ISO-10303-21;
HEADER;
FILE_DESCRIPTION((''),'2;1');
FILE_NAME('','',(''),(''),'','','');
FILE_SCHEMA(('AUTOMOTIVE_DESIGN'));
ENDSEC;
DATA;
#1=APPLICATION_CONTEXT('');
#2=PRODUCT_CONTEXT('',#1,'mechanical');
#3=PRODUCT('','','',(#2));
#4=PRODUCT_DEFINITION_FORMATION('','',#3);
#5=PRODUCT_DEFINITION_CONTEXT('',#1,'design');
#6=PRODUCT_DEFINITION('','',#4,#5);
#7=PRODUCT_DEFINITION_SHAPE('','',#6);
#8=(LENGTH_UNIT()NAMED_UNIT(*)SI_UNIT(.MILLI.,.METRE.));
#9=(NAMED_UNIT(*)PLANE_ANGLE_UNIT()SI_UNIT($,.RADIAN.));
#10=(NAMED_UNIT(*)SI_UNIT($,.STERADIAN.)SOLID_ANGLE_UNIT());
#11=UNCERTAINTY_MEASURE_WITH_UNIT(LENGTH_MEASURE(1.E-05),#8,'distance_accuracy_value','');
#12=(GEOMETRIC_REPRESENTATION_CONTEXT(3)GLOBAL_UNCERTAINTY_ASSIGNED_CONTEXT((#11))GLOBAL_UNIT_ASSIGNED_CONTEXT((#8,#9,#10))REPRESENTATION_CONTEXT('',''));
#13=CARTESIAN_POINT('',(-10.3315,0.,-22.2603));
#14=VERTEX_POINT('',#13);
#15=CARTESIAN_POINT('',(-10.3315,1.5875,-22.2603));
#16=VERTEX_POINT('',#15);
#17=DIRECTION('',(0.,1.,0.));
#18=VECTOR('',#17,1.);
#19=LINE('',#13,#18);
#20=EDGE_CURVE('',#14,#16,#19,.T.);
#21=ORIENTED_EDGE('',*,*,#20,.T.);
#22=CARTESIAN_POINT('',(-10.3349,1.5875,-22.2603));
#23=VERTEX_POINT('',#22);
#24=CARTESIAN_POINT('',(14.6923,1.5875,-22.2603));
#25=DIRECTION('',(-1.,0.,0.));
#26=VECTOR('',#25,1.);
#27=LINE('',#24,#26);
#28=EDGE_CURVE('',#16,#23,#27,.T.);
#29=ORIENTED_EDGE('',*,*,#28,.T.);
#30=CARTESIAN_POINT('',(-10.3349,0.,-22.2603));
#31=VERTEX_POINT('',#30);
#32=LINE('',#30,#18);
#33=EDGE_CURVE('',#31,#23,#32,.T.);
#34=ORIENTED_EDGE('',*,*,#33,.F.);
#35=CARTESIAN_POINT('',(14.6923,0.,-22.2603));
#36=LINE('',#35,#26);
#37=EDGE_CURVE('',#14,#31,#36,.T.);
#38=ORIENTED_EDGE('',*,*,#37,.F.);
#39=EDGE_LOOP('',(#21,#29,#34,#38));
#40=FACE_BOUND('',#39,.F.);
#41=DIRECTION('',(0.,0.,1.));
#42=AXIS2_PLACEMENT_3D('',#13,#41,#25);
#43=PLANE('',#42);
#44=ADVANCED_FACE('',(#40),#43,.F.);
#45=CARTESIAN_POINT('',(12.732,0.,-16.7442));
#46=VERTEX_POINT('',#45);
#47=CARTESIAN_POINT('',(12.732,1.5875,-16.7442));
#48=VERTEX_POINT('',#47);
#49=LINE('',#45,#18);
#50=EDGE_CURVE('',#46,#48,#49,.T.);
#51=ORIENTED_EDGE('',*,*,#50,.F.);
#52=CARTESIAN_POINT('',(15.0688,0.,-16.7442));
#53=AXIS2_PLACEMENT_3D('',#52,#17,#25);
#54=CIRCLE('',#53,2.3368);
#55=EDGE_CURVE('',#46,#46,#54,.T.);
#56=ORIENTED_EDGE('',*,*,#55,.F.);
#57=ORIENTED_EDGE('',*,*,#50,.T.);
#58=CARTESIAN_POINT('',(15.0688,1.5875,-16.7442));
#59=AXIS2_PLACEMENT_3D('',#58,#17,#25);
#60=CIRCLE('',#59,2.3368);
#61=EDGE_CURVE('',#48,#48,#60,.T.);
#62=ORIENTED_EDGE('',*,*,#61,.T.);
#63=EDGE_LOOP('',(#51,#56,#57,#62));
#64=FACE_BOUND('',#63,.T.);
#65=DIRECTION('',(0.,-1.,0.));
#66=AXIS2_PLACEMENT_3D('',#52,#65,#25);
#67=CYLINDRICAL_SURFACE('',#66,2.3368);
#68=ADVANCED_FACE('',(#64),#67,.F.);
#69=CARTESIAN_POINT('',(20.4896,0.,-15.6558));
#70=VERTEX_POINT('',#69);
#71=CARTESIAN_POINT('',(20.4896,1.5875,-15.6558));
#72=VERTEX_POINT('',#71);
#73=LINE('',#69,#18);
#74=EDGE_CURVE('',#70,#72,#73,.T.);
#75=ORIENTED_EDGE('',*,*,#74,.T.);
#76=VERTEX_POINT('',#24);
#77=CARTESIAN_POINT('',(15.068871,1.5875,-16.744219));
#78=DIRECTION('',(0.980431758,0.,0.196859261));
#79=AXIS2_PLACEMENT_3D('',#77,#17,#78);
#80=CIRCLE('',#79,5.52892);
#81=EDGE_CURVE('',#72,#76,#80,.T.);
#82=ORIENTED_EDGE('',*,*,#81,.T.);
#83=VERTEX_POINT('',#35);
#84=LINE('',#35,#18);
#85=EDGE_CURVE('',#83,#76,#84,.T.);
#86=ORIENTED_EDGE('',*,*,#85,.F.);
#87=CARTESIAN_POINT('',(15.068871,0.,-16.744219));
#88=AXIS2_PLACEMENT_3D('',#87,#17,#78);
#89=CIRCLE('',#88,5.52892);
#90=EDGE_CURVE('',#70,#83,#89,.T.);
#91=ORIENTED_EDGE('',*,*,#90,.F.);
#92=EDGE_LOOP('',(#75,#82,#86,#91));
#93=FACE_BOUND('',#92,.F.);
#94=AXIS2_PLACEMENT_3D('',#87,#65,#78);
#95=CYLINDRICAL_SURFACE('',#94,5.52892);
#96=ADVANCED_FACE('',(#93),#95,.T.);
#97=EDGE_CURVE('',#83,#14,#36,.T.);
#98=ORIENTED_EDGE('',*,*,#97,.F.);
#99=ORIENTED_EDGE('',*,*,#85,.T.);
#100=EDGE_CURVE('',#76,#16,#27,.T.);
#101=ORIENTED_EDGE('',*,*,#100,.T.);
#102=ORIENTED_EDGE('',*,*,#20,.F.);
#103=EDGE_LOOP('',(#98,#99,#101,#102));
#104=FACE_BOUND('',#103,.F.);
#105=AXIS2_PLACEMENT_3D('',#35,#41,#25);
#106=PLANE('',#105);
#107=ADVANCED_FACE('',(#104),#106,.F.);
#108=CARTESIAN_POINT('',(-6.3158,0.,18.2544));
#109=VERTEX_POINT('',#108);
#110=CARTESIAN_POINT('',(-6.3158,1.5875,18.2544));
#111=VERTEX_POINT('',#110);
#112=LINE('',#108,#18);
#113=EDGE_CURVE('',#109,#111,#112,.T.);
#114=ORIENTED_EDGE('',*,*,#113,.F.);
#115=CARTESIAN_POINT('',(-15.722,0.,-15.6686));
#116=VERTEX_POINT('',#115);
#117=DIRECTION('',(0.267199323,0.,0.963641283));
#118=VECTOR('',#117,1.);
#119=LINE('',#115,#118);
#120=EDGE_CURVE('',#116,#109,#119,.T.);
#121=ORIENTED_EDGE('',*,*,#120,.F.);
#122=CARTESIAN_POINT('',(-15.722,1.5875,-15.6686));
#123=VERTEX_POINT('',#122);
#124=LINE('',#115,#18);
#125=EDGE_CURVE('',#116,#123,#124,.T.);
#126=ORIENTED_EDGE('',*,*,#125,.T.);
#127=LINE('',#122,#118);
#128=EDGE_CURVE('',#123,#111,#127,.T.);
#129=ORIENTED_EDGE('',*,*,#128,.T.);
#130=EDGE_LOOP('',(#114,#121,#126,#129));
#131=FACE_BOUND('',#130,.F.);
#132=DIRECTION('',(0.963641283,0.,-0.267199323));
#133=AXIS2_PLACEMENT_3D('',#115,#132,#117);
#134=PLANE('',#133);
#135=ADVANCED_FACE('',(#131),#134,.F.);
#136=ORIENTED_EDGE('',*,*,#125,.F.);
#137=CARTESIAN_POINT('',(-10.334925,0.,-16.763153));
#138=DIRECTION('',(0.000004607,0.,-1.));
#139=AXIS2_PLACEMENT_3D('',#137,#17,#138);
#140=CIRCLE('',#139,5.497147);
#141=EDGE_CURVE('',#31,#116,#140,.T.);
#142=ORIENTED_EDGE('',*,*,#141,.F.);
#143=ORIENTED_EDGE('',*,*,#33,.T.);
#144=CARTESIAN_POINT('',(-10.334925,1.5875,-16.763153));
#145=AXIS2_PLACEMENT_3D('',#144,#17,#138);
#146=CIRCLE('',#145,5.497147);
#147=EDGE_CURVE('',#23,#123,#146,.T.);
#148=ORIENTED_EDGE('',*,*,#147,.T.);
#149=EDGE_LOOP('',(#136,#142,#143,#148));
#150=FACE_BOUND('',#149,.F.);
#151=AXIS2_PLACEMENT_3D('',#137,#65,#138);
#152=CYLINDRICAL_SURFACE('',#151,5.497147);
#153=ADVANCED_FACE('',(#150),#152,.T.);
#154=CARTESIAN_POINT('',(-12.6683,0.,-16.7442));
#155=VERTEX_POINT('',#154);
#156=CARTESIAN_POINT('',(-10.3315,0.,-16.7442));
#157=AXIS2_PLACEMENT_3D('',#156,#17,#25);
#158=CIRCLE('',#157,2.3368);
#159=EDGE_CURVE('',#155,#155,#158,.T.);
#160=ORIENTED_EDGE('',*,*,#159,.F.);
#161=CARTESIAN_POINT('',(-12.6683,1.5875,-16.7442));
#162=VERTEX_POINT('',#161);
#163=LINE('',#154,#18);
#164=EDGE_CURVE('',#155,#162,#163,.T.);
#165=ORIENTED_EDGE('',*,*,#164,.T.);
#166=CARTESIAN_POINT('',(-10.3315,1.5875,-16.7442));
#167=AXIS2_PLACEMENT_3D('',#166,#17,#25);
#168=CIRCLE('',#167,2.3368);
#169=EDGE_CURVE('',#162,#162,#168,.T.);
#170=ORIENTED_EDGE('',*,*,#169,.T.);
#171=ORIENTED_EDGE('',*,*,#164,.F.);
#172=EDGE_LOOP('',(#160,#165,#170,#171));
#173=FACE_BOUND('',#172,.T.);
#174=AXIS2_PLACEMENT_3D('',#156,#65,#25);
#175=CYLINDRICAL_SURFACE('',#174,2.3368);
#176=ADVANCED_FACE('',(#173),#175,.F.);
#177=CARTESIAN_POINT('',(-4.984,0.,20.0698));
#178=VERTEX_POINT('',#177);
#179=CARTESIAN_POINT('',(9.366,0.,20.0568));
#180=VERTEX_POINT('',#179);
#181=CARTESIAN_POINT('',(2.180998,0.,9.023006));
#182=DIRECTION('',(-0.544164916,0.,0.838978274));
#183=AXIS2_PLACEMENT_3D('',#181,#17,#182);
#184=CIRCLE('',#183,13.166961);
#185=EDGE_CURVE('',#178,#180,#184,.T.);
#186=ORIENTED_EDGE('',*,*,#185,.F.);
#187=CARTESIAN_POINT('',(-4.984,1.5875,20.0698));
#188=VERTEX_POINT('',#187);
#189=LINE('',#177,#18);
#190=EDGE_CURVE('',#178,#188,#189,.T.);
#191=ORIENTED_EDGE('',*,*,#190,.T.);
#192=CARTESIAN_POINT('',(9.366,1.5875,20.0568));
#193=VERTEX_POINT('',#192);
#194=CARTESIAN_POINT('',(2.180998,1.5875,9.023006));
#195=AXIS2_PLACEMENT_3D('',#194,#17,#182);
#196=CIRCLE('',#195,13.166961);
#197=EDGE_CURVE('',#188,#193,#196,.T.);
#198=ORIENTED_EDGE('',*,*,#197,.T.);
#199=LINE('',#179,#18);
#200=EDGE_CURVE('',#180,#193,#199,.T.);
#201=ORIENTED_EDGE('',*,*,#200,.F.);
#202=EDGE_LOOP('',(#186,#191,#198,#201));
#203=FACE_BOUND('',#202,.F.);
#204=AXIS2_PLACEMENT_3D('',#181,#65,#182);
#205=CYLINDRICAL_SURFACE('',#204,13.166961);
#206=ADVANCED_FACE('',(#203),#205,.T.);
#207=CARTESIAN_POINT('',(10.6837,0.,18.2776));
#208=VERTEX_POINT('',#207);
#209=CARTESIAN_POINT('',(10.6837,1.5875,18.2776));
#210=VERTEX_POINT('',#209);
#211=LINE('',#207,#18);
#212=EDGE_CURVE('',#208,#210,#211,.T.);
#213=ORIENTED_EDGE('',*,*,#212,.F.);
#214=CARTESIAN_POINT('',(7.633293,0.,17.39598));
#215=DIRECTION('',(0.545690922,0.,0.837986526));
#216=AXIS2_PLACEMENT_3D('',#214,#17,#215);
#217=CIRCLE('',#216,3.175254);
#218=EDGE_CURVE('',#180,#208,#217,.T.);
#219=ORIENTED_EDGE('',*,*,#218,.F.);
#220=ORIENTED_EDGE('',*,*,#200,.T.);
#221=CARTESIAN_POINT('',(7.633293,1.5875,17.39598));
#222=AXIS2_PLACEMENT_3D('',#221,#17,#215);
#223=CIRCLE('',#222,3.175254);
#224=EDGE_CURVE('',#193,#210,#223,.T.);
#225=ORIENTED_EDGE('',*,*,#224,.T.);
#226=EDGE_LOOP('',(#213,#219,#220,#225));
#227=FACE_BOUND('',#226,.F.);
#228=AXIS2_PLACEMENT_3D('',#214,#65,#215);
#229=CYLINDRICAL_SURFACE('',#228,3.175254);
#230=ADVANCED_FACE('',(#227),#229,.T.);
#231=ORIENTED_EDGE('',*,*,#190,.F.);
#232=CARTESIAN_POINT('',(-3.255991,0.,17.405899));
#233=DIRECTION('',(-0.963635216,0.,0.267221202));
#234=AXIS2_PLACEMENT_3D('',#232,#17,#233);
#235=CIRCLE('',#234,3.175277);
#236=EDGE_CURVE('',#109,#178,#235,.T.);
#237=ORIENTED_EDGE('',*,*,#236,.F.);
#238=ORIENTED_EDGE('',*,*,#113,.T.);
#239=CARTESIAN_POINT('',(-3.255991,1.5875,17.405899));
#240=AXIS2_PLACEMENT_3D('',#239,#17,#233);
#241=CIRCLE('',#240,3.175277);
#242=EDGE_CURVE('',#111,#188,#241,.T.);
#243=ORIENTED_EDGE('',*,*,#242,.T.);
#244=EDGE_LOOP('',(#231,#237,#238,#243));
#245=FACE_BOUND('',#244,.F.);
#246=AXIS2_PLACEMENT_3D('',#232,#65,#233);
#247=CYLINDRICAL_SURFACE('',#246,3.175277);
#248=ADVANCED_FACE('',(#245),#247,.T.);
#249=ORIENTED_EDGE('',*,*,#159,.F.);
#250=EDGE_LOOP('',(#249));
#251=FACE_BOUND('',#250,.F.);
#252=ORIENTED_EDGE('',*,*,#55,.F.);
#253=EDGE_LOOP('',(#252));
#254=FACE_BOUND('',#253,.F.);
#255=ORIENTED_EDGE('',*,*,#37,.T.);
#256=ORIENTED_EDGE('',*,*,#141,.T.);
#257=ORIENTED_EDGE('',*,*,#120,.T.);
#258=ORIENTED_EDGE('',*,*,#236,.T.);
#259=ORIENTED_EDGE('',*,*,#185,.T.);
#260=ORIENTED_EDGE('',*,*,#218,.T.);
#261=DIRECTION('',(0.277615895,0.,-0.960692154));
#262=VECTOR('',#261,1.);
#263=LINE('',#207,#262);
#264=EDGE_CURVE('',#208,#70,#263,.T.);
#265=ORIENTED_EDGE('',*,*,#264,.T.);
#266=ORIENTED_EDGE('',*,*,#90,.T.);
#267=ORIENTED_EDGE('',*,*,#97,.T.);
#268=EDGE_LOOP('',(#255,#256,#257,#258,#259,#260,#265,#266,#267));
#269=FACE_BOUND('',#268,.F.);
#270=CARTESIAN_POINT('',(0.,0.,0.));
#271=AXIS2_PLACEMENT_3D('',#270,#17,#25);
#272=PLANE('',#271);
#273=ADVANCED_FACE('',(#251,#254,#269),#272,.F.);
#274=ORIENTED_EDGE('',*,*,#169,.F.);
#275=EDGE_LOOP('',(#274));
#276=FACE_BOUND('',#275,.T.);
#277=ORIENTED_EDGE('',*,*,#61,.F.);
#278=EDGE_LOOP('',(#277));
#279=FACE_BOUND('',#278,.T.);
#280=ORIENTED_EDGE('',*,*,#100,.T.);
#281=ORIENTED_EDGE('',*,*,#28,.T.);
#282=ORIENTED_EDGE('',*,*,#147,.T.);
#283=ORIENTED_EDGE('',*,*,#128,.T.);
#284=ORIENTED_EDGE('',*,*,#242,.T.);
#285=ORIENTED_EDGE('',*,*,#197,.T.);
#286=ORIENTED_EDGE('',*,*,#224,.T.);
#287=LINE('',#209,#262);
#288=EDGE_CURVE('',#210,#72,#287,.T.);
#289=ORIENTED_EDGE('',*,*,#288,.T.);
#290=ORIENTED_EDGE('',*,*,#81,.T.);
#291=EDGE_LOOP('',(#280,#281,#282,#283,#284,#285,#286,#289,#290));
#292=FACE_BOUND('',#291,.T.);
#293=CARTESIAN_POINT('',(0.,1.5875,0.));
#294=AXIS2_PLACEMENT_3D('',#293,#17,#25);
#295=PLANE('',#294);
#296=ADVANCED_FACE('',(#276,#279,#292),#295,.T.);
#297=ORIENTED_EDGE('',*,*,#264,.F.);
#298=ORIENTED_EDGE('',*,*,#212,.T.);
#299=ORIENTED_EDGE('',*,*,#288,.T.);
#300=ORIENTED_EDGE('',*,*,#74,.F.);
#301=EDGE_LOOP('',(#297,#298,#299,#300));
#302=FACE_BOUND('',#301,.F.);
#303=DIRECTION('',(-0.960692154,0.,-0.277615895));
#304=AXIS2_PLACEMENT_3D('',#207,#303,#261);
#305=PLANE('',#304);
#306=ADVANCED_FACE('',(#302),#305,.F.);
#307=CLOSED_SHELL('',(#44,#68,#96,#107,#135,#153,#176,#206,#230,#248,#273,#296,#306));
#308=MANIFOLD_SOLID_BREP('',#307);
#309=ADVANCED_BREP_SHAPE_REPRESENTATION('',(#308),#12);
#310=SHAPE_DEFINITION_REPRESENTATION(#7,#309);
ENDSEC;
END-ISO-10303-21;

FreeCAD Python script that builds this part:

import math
import FreeCAD as App
import Part
import Sketcher

V = App.Vector
Q = App.Units.Quantity

doc = App.newDocument("Part")
body = doc.addObject("PartDesign::Body", "Body")

# Sketch on XZ plane
sketch1 = body.newObject("Sketcher::SketchObject", "Sketch")
sketch1.AttachmentSupport = (doc.getObject("XZ_Plane"), [""])
sketch1.MapMode = "FlatFace"
sketch1.addGeometry(Part.LineSegment(V(10.7, 18.3, 0), V(20.5, -15.7, 0)), False)
sketch1.addGeometry(Part.ArcOfCircle(Part.Circle(V(15.1, -16.7, 0), V(0, 0, 1), 5.5), math.radians(-94), math.radians(11)), False)
sketch1.addGeometry(Part.LineSegment(V(14.7, -22.3, 0), V(-10.3, -22.3, 0)), False)
sketch1.addGeometry(Part.ArcOfCircle(Part.Circle(V(-10.3, -16.8, 0), V(0, 0, 1), 5.5), math.radians(169), math.radians(270)), False)
sketch1.addGeometry(Part.LineSegment(V(-15.7, -15.7, 0), V(-6.3, 18.3, 0)), False)
sketch1.addGeometry(Part.ArcOfCircle(Part.Circle(V(-3.3, 17.4, 0), V(0, 0, 1), 3.2), math.radians(123), math.radians(165)), False)
sketch1.addGeometry(Part.ArcOfCircle(Part.Circle(V(2.2, 9, 0), V(0, 0, 1), 13.2), math.radians(57), math.radians(123)), False)
sketch1.addGeometry(Part.ArcOfCircle(Part.Circle(V(7.6, 17.4, 0), V(0, 0, 1), 3.2), math.radians(16), math.radians(57)), False)
sketch1.addGeometry(Part.Circle(V(15.1, -16.7, 0), V(0, 0, 1), 2.3), False)
sketch1.addGeometry(Part.Circle(V(-10.3, -16.7, 0), V(0, 0, 1), 2.3), False)
sketch1.addConstraint(Sketcher.Constraint("Coincident", 0, 2, 1, 2))
sketch1.addConstraint(Sketcher.Constraint("Coincident", 1, 1, 2, 1))
sketch1.addConstraint(Sketcher.Constraint("Tangent", 2, 2, 3, 2))
sketch1.addConstraint(Sketcher.Constraint("Coincident", 3, 1, 4, 1))
sketch1.addConstraint(Sketcher.Constraint("Tangent", 4, 2, 5, 2))
sketch1.addConstraint(Sketcher.Constraint("Tangent", 5, 1, 6, 2))
sketch1.addConstraint(Sketcher.Constraint("Tangent", 6, 1, 7, 2))
sketch1.addConstraint(Sketcher.Constraint("Tangent", 7, 1, 0, 1))
sketch1.addConstraint(Sketcher.Constraint("Horizontal", 2))
sketch1.addConstraint(Sketcher.Constraint("Coincident", 8, 3, 1, 3))
sketch1.addConstraint(Sketcher.Constraint("Equal", 5, 7))
sketch1.addConstraint(Sketcher.Constraint("Equal", 8, 9))
sketch1.addConstraint(Sketcher.Constraint("Horizontal", 8, 3, 9, 3))
sketch1.addConstraint(Sketcher.Constraint("Diameter", 8, Q("0.184 in")))
sketch1.addConstraint(Sketcher.Constraint("Radius", 5, Q("0.125 in")))
sketch1.addConstraint(Sketcher.Constraint("DistanceX", 9, 3, 1, 3, Q("1 in")))
sketch1.addConstraint(Sketcher.Constraint("Radius", 1, 5.529))
sketch1.addConstraint(Sketcher.Constraint("Radius", 3, 5.4972))
sketch1.addConstraint(Sketcher.Constraint("Radius", 6, 13.167))
sketch1.addConstraint(Sketcher.Constraint("Distance", 0, Q("1.390622 in")))
sketch1.addConstraint(Sketcher.Constraint("DistanceX", 2, 2, 2, 1, 25.0272))
sketch1.addConstraint(Sketcher.Constraint("DistanceX", 5, 3, -1, 1, Q("0.1282 in")))
sketch1.addConstraint(Sketcher.Constraint("DistanceY", -1, 1, 7, 3, Q("0.6849 in")))
sketch1.addConstraint(Sketcher.Constraint("DistanceY", 1, 1, -1, 1, Q("0.8764 in")))
sketch1.addConstraint(Sketcher.Constraint("DistanceY", -1, 1, 7, 1, Q("0.7196 in")))
sketch1.addConstraint(Sketcher.Constraint("DistanceX", 3, 3, 5, 3, Q("0.2787 in")))
sketch1.addConstraint(Sketcher.Constraint("DistanceY", 1, 3, 5, 3, Q("1.3445 in")))
sketch1.addConstraint(Sketcher.Constraint("DistanceY", 3, 3, 6, 3, Q("1.0152 in")))
sketch1.addConstraint(Sketcher.Constraint("DistanceX", 3, 1, 3, 3, Q("0.2121 in")))
pad1 = body.newObject("PartDesign::Pad", "Pad")
pad1.Profile = sketch1
pad1.Length = Q("0.0625 in")
pad1.Reversed = True

doc.recompute()
